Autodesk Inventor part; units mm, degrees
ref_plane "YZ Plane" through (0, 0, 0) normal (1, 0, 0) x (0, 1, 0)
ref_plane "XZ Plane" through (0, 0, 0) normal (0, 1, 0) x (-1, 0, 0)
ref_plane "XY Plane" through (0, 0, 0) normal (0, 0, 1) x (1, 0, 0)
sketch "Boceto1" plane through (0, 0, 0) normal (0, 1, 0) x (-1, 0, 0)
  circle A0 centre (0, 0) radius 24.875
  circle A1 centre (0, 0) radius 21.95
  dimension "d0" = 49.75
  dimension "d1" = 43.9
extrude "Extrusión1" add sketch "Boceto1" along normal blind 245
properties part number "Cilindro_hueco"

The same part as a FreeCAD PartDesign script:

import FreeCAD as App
import Part
import Sketcher
from FreeCAD import Vector
Q = App.Units.Quantity

doc = App.newDocument("Part")
params = doc.addObject("Spreadsheet::Sheet", "Params")
for row, (alias, value) in enumerate([
    ("sketch1_diameter", "43.9 mm"),
    ("sketch1_diameter2", "49.75 mm"),
    ("pad1_length", "245 mm"),
], start=1):
    params.set(f"A{row}", alias)
    params.set(f"B{row}", "=" + value)
    params.setAlias(f"B{row}", alias)

body = doc.addObject("PartDesign::Body", "Body")

# Sketch on XZ plane
sketch1 = doc.addObject("Sketcher::SketchObject", "Sketch")
body.addObject(sketch1)
sketch1.AttachmentSupport = (doc.XZ_Plane, [""])
sketch1.MapMode = "FlatFace"
sketch1.addGeometry(Part.Circle(Vector(0, 0, 0), Vector(0, 0, 1), 25), False)
sketch1.addGeometry(Part.Circle(Vector(0, 0, 0), Vector(0, 0, 1), 22), False)
sketch1.addConstraint(Sketcher.Constraint("Coincident", 0, 3, -1, 1))
sketch1.addConstraint(Sketcher.Constraint("Coincident", 1, 3, -1, 1))
sketch1.addConstraint(Sketcher.Constraint("Diameter", 1, Q("43.9 mm")))
sketch1.addConstraint(Sketcher.Constraint("Diameter", 0, Q("49.75 mm")))
sketch1.setExpression("Constraints[2]", "Params.sketch1_diameter")
sketch1.setExpression("Constraints[3]", "Params.sketch1_diameter2")
pad1 = doc.addObject("PartDesign::Pad", "Pad")
body.addObject(pad1)
pad1.Profile = sketch1
pad1.setExpression("Length", "Params.pad1_length")
pad1.Reversed = True

doc.recompute()
